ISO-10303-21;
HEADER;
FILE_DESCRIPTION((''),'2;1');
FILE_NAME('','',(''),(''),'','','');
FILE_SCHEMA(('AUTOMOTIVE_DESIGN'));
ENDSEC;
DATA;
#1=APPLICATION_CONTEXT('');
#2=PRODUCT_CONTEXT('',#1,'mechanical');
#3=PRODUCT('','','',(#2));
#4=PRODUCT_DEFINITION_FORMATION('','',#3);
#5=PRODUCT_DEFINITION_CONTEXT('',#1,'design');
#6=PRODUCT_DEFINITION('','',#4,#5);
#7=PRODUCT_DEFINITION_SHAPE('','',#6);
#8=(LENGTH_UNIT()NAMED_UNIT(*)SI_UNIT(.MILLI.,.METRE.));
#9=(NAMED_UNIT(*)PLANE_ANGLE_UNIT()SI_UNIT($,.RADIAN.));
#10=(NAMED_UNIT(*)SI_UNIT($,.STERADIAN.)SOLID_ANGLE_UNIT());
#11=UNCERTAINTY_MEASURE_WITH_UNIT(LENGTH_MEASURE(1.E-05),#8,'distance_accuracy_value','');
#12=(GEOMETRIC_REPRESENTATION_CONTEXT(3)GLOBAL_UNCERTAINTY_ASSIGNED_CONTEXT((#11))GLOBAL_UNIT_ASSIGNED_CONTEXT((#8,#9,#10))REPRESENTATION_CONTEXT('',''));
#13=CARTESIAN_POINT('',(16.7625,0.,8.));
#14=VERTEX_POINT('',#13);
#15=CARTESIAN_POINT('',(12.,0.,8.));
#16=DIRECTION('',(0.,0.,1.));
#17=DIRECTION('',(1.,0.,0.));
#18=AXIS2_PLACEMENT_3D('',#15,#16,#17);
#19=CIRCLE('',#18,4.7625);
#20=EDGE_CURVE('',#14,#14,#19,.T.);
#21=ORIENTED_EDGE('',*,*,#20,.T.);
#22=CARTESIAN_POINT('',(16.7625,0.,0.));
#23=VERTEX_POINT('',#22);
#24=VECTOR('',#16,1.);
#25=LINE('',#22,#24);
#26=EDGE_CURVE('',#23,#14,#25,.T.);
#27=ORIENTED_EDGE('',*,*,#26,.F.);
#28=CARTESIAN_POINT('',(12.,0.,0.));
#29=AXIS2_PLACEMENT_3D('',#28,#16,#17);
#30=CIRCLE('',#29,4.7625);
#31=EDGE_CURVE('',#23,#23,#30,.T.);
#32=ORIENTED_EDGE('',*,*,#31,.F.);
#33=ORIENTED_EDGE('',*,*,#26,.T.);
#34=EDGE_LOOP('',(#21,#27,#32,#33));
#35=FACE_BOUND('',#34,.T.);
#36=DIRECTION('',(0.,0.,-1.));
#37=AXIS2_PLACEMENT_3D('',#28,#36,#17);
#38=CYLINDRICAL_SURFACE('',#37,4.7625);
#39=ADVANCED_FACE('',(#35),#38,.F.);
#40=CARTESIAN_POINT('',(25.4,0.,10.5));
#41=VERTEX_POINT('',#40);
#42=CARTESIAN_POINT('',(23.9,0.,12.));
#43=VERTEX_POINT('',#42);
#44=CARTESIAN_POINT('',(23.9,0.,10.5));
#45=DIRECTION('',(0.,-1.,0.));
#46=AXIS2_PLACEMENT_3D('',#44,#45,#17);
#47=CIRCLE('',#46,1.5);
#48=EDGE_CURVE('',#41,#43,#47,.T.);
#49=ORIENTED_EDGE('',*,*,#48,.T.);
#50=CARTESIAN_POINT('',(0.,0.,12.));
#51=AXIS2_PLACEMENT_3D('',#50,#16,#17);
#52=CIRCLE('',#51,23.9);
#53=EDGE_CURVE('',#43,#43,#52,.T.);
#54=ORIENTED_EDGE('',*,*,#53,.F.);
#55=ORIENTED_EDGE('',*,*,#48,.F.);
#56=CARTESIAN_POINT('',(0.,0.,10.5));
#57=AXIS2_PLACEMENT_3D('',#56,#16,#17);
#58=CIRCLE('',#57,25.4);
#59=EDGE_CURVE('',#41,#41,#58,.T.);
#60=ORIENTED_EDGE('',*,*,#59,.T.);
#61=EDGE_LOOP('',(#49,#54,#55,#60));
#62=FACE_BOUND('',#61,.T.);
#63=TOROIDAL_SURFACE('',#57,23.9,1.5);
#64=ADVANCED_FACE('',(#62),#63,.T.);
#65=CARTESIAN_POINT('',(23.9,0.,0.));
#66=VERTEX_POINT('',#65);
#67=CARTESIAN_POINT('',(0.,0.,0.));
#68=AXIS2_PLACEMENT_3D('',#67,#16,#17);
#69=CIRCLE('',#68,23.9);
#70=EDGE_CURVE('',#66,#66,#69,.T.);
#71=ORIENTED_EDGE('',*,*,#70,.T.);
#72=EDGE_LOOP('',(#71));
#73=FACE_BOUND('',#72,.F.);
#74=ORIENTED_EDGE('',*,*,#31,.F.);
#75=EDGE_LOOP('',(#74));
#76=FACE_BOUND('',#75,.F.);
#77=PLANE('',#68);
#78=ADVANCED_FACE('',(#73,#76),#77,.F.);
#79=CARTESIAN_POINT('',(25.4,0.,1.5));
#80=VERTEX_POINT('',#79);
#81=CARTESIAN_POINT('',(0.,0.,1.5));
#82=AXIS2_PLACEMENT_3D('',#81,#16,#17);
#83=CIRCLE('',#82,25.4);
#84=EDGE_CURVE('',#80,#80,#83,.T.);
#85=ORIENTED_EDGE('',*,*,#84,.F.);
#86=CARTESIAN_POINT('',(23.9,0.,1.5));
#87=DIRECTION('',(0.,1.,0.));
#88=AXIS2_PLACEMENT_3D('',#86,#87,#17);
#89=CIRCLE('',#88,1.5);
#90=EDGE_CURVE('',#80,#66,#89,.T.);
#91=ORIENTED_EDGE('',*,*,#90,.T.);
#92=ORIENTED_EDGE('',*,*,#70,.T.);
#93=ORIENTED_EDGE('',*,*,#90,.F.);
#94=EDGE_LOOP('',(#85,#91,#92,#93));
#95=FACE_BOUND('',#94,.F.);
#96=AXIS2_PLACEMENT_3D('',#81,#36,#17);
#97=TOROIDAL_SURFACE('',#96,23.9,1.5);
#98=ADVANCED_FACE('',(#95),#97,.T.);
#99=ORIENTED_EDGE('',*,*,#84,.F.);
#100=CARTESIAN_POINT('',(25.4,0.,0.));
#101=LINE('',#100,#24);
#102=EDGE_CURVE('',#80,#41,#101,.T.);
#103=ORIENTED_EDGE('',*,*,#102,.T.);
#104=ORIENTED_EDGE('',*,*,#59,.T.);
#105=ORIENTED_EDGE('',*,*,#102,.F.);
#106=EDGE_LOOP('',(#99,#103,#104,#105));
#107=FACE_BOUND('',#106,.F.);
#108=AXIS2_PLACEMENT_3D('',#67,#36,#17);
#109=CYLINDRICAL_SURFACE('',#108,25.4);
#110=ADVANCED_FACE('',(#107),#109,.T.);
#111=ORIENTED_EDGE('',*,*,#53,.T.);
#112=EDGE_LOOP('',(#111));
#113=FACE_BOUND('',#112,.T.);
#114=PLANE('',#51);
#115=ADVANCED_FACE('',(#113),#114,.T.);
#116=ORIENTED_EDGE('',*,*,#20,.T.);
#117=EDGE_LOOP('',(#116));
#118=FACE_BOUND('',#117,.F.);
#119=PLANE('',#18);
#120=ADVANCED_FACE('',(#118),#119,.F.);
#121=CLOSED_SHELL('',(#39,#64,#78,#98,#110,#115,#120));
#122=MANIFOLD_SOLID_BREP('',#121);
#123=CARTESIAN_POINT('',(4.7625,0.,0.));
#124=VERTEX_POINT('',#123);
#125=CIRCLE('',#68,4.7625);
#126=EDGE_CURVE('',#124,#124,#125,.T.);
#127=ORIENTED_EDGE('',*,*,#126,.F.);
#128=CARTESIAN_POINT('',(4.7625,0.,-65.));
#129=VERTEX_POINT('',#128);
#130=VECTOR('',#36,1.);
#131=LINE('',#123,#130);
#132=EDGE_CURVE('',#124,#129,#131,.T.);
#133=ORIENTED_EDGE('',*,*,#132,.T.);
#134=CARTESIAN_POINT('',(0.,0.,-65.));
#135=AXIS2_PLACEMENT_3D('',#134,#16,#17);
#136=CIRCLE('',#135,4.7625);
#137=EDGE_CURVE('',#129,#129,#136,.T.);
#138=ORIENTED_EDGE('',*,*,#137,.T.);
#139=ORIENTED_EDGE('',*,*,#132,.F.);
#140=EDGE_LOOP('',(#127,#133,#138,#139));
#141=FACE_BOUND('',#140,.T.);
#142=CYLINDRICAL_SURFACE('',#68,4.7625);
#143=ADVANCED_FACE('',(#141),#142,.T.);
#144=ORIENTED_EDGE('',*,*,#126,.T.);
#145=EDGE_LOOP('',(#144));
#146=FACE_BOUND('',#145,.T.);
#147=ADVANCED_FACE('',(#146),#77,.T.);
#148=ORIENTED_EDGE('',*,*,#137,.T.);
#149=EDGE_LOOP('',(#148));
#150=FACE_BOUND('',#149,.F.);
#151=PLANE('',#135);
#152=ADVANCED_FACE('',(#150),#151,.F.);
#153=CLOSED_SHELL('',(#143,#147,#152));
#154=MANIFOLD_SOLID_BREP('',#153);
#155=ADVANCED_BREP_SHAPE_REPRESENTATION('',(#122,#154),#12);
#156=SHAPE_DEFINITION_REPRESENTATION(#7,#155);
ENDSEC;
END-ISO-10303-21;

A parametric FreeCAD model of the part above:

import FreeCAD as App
import Part
import Sketcher

V = App.Vector
Q = App.Units.Quantity


def edges_at(feature, points):
    """Names of the edges that pass closest to the given points."""
    edges = feature.Shape.Edges
    near = lambda p: min(range(len(edges)), key=lambda i: edges[i].distToShape(Part.Vertex(*p))[0])
    return sorted({f"Edge{near(p) + 1}" for p in points})

doc = App.newDocument("Part")
body = doc.addObject("PartDesign::Body", "Body")

# Sketch on XY plane
sketch1 = body.newObject("Sketcher::SketchObject", "Sketch")
sketch1.AttachmentSupport = (doc.getObject("XY_Plane"), [""])
sketch1.MapMode = "FlatFace"
sketch1.addGeometry(Part.Circle(V(0, 0, 0), V(0, 0, 1), 25), False)
sketch1.addConstraint([
    Sketcher.Constraint("Coincident", 0, 3, -1, 1),
    Sketcher.Constraint("Diameter", 0, Q("50.8 mm")),
])
pad1 = body.newObject("PartDesign::Pad", "Pad")
pad1.Profile = sketch1
pad1.Length = 12
doc.recompute()

fillet = body.newObject("PartDesign::Fillet", "Fillet")
fillet.Base = (pad1, edges_at(pad1, [(-25.4, 0, 12), (-25.4, 0, 0)]))
fillet.Radius = 1.5

# Sketch on XY plane
sketch2 = body.newObject("Sketcher::SketchObject", "Sketch001")
sketch2.AttachmentSupport = (doc.getObject("XY_Plane"), [""])
sketch2.MapMode = "FlatFace"
sketch2.addGeometry(Part.Circle(V(12, 0, 0), V(0, 0, 1), 4.8), False)
sketch2.addConstraint([
    Sketcher.Constraint("PointOnObject", 0, 3, -1),
    Sketcher.Constraint("Diameter", 0, Q("9.525 mm")),
    Sketcher.Constraint("DistanceX", -1, 1, 0, 3, Q("12 mm")),
])
pocket1 = body.newObject("PartDesign::Pocket", "Pocket")
pocket1.Profile = sketch2
pocket1.Length = 8
pocket1.Reversed = True
body2 = doc.addObject("PartDesign::Body", "Body001")

# Sketch on XY plane
sketch3 = body2.newObject("Sketcher::SketchObject", "Sketch002")
sketch3.AttachmentSupport = (doc.getObject("XY_Plane001"), [""])
sketch3.MapMode = "FlatFace"
sketch3.addGeometry(Part.Circle(V(0, 0, 0), V(0, 0, 1), 4.8), False)
sketch3.addConstraint([
    Sketcher.Constraint("Coincident", 0, 3, -1, 1),
    Sketcher.Constraint("Diameter", 0, Q("9.525 mm")),
])
pad2 = body2.newObject("PartDesign::Pad", "Pad001")
pad2.Profile = sketch3
pad2.Length = 65
pad2.Reversed = True

doc.recompute()
